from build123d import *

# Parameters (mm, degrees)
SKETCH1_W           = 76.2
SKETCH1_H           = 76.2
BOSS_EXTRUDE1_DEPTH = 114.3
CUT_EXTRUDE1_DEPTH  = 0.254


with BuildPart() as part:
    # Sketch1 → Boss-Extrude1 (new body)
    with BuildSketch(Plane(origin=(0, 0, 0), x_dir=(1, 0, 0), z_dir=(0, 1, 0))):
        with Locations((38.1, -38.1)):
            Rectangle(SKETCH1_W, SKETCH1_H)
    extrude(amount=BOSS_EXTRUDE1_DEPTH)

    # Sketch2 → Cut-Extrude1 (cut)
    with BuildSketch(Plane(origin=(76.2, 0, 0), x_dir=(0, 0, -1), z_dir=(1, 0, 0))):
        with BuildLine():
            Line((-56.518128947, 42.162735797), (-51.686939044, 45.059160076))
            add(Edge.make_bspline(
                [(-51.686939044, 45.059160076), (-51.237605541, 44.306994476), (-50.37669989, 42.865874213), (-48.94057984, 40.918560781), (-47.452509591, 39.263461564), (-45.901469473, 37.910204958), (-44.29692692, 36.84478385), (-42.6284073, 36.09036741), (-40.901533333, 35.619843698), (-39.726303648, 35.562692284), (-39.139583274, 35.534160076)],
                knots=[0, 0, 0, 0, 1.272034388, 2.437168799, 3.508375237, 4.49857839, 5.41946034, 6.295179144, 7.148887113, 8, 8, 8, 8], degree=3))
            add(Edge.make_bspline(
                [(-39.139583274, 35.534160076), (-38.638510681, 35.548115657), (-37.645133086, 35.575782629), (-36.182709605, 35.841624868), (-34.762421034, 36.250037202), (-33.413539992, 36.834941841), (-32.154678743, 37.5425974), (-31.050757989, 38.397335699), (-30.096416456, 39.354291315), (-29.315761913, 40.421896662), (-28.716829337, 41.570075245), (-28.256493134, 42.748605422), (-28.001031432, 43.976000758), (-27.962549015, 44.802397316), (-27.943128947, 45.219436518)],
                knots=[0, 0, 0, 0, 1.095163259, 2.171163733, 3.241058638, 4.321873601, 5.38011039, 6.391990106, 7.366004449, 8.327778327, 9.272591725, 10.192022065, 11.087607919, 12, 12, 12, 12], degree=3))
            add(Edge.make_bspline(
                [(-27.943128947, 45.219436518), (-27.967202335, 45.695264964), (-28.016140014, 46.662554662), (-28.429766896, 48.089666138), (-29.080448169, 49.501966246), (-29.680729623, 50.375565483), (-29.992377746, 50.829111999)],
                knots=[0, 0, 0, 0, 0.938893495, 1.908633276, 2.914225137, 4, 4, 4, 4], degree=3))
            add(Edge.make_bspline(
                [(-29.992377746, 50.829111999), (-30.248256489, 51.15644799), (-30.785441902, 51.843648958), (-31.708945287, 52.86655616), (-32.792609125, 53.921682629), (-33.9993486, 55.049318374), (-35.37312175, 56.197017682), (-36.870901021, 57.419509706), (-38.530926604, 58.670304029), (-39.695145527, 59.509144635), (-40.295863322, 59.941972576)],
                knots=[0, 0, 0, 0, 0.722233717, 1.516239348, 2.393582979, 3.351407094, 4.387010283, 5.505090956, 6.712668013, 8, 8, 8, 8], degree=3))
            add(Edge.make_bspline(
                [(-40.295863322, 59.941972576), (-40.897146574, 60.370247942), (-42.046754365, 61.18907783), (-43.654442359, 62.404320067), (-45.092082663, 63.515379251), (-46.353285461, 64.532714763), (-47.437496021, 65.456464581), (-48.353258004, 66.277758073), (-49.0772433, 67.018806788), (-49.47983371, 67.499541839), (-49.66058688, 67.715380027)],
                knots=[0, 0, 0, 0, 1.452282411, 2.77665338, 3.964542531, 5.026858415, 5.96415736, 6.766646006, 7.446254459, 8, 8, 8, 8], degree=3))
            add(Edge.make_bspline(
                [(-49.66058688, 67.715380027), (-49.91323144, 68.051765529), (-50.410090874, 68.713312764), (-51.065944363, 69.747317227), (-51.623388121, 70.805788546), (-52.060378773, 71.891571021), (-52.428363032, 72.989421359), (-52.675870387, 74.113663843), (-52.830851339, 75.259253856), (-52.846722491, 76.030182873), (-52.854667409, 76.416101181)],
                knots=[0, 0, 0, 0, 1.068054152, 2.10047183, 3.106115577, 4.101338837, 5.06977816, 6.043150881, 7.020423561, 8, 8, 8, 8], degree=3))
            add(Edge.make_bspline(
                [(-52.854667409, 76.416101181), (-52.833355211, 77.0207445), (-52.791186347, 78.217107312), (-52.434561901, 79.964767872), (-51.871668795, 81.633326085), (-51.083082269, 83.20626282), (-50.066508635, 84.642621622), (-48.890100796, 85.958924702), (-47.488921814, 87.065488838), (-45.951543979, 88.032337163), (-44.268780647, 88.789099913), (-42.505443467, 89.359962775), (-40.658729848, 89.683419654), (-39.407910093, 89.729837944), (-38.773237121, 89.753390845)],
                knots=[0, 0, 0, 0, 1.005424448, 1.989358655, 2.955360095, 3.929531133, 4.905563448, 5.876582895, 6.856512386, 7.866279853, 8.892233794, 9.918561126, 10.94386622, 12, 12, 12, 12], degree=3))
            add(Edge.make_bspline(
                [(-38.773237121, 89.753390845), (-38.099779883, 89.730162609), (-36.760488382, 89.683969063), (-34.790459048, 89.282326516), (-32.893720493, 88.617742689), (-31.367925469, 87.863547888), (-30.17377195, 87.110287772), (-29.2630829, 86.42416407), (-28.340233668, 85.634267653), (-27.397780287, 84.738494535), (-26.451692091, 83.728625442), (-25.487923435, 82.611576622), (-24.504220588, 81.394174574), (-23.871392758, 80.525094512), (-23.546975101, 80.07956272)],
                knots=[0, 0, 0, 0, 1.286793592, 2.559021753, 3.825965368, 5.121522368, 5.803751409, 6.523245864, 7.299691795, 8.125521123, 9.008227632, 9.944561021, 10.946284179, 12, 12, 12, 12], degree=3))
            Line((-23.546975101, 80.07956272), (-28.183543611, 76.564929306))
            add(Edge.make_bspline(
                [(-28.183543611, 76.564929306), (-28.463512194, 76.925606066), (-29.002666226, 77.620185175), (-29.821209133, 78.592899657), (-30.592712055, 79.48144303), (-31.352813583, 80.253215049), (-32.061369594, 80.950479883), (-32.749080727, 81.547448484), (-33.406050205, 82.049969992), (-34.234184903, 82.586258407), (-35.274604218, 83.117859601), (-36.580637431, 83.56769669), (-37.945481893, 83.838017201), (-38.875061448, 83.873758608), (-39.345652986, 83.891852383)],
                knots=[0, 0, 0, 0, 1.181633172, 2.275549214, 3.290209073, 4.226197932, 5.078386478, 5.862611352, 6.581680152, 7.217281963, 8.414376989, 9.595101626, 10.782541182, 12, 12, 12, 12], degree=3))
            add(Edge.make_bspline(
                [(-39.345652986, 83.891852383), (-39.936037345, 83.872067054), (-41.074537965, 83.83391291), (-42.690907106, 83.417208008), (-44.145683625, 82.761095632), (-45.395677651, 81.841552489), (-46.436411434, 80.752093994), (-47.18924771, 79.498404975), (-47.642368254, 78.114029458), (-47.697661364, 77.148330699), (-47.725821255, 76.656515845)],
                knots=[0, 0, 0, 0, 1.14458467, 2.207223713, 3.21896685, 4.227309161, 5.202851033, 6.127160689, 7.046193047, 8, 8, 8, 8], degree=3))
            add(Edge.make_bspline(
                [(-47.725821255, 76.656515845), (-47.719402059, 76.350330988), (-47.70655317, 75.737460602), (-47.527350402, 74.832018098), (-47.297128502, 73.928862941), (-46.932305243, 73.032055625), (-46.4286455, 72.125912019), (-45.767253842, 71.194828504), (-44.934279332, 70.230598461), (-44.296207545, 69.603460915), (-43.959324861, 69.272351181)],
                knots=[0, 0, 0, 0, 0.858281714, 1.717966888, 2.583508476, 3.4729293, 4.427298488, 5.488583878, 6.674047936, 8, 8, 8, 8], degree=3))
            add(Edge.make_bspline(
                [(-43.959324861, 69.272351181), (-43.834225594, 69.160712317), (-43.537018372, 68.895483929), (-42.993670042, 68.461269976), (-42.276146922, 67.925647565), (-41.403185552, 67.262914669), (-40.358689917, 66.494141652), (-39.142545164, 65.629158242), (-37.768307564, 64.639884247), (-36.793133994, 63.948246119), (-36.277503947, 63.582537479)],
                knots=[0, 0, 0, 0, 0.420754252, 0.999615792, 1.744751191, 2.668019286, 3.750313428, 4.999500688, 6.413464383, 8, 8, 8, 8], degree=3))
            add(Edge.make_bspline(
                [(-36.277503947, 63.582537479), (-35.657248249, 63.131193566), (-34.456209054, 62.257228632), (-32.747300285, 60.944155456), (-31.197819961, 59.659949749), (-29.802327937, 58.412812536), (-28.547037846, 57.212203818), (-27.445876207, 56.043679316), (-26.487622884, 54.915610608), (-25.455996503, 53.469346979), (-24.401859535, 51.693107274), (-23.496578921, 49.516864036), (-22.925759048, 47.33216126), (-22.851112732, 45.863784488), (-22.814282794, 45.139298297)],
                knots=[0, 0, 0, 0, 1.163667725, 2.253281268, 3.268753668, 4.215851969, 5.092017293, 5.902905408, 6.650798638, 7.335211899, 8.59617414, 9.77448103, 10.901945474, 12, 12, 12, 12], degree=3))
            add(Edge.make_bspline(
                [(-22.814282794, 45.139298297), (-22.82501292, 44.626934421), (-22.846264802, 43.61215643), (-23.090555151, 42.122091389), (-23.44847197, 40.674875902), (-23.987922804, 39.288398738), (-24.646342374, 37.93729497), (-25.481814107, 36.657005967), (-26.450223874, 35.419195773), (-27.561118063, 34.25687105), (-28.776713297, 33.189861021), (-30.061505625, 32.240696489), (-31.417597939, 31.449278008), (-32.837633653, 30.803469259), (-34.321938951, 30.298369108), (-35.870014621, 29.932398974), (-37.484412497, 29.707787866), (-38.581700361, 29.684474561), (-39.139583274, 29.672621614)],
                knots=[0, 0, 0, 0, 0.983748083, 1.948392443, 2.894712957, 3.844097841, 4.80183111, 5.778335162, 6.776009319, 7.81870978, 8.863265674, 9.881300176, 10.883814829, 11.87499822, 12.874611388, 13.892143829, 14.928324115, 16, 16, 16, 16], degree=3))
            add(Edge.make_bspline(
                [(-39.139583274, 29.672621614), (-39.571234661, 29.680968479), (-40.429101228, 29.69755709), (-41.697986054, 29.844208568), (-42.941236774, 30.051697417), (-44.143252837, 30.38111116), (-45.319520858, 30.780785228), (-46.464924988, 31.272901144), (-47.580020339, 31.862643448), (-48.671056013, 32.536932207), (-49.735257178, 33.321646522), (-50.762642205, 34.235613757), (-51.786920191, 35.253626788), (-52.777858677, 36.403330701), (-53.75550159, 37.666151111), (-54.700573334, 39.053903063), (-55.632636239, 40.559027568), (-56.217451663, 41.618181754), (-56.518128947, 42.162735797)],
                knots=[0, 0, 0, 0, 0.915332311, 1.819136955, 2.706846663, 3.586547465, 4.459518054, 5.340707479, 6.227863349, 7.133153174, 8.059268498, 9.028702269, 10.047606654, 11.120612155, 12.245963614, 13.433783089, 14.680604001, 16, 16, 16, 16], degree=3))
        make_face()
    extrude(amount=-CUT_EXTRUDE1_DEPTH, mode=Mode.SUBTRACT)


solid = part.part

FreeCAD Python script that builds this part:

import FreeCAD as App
import Part
import Sketcher

V = App.Vector
Q = App.Units.Quantity

doc = App.newDocument("Part")
params = doc.addObject("Spreadsheet::Sheet", "Params")
for row, (alias, value) in enumerate([
    ("sketch1_width", "3 in"),
    ("pad1_length", "4.5 in"),
    ("pocket1_length", "0.01 in"),
], start=1):
    params.set(f"A{row}", alias)
    params.set(f"B{row}", "=" + value)
    params.setAlias(f"B{row}", alias)

body = doc.addObject("PartDesign::Body", "Body")

sketch1 = doc.addObject("Sketcher::SketchObject", "Sketch")
body.addObject(sketch1)
sketch1.AttachmentSupport = (doc.XZ_Plane, [""])
sketch1.MapMode = "FlatFace"
sketch1.addGeometry([
    Part.LineSegment(V(0, 0, 0), V(0, 76, 0)),
    Part.LineSegment(V(0, 76, 0), V(76, 76, 0)),
    Part.LineSegment(V(76, 76, 0), V(76, 0, 0)),
    Part.LineSegment(V(76, 0, 0), V(0, 0, 0)),
], False)
sketch1.addConstraint([
    Sketcher.Constraint("Coincident", 0, 2, 1, 1),
    Sketcher.Constraint("Coincident", 1, 2, 2, 1),
    Sketcher.Constraint("Coincident", 2, 2, 3, 1),
    Sketcher.Constraint("Coincident", 3, 2, 0, 1),
    Sketcher.Constraint("Vertical", 0),
    Sketcher.Constraint("Horizontal", 1),
    Sketcher.Constraint("Vertical", 2),
    Sketcher.Constraint("Horizontal", 3),
    Sketcher.Constraint("Coincident", 3, 2, -1, 1),
    Sketcher.Constraint("Equal", 3, 0),
    Sketcher.Constraint("DistanceX", 1, 1, 1, 2, Q("3 in")),
])
sketch1.setExpression("Constraints[10]", "Params.sketch1_width")
pad1 = doc.addObject("PartDesign::Pad", "Pad")
body.addObject(pad1)
pad1.Profile = sketch1
pad1.setExpression("Length", "Params.pad1_length")
pad1.Reversed = True

sketch2 = doc.addObject("Sketcher::SketchObject", "Sketch001")
body.addObject(sketch2)
sketch2.AttachmentSupport = (doc.YZ_Plane, [""])
sketch2.MapMode = "FlatFace"
sketch2.AttachmentOffset = App.Placement(V(0, 0, 3 * 25.4), App.Rotation())
sketch2.addGeometry([
    Part.LineSegment(V(45.05916, 51.686939, 0), V(42.162736, 56.518129, 0)),
    Part.BSplineCurve([V(29.672622, 39.139583, 0), V(29.680968, 39.571235, 0), V(29.697557, 40.429101, 0), V(29.844209, 41.697986, 0), V(30.051697, 42.941237, 0), V(30.381111, 44.143253, 0), V(30.780785, 45.319521, 0), V(31.272901, 46.464925, 0), V(31.862643, 47.58002, 0), V(32.536932, 48.671056, 0), V(33.321647, 49.735257, 0), V(34.235614, 50.762642, 0), V(35.253627, 51.78692, 0), V(36.403331, 52.777859, 0), V(37.666151, 53.755502, 0), V(39.053903, 54.700573, 0), V(40.559028, 55.632636, 0), V(41.618182, 56.217452, 0), V(42.162736, 56.518129, 0)], [4, 1, 1, 1, 1, 1, 1, 1, 1, 1, 1, 1, 1, 1, 1, 1, 4], [0, 0.915332311, 1.819136955, 2.706846663, 3.586547465, 4.459518054, 5.340707479, 6.227863349, 7.133153174, 8.059268498, 9.028702269, 10.047606654, 11.120612155, 12.245963614, 13.433783089, 14.680604001, 16], False, 3, [1, 1, 1, 1, 1, 1, 1, 1, 1, 1, 1, 1, 1, 1, 1, 1, 1, 1, 1], False),
    Part.BSplineCurve([V(45.139298, 22.814283, 0), V(44.626934, 22.825013, 0), V(43.612156, 22.846265, 0), V(42.122091, 23.090555, 0), V(40.674876, 23.448472, 0), V(39.288399, 23.987923, 0), V(37.937295, 24.646342, 0), V(36.657006, 25.481814, 0), V(35.419196, 26.450224, 0), V(34.256871, 27.561118, 0), V(33.189861, 28.776713, 0), V(32.240696, 30.061506, 0), V(31.449278, 31.417598, 0), V(30.803469, 32.837634, 0), V(30.298369, 34.321939, 0), V(29.932399, 35.870015, 0), V(29.707788, 37.484412, 0), V(29.684475, 38.5817, 0), V(29.672622, 39.139583, 0)], [4, 1, 1, 1, 1, 1, 1, 1, 1, 1, 1, 1, 1, 1, 1, 1, 4], [0, 0.983748083, 1.948392443, 2.894712957, 3.844097841, 4.80183111, 5.778335162, 6.776009319, 7.81870978, 8.863265674, 9.881300176, 10.883814829, 11.87499822, 12.874611388, 13.892143829, 14.928324115, 16], False, 3, [1, 1, 1, 1, 1, 1, 1, 1, 1, 1, 1, 1, 1, 1, 1, 1, 1, 1, 1], False),
    Part.BSplineCurve([V(63.582537, 36.277504, 0), V(63.131194, 35.657248, 0), V(62.257229, 34.456209, 0), V(60.944155, 32.7473, 0), V(59.65995, 31.19782, 0), V(58.412813, 29.802328, 0), V(57.212204, 28.547038, 0), V(56.043679, 27.445876, 0), V(54.915611, 26.487623, 0), V(53.469347, 25.455997, 0), V(51.693107, 24.40186, 0), V(49.516864, 23.496579, 0), V(47.332161, 22.925759, 0), V(45.863784, 22.851113, 0), V(45.139298, 22.814283, 0)], [4, 1, 1, 1, 1, 1, 1, 1, 1, 1, 1, 1, 4], [0, 1.163667725, 2.253281268, 3.268753668, 4.215851969, 5.092017293, 5.902905408, 6.650798638, 7.335211899, 8.59617414, 9.77448103, 10.901945474, 12], False, 3, [1, 1, 1, 1, 1, 1, 1, 1, 1, 1, 1, 1, 1, 1, 1], False),
    Part.BSplineCurve([V(69.272351, 43.959325, 0), V(69.160712, 43.834226, 0), V(68.895484, 43.537018, 0), V(68.46127, 42.99367, 0), V(67.925648, 42.276147, 0), V(67.262915, 41.403186, 0), V(66.494142, 40.35869, 0), V(65.629158, 39.142545, 0), V(64.639884, 37.768308, 0), V(63.948246, 36.793134, 0), V(63.582537, 36.277504, 0)], [4, 1, 1, 1, 1, 1, 1, 1, 4], [0, 0.420754252, 0.999615792, 1.744751191, 2.668019286, 3.750313428, 4.999500688, 6.413464383, 8], False, 3, [1, 1, 1, 1, 1, 1, 1, 1, 1, 1, 1], False),
    Part.BSplineCurve([V(76.656516, 47.725821, 0), V(76.350331, 47.719402, 0), V(75.737461, 47.706553, 0), V(74.832018, 47.52735, 0), V(73.928863, 47.297129, 0), V(73.032056, 46.932305, 0), V(72.125912, 46.428646, 0), V(71.194829, 45.767254, 0), V(70.230598, 44.934279, 0), V(69.603461, 44.296208, 0), V(69.272351, 43.959325, 0)], [4, 1, 1, 1, 1, 1, 1, 1, 4], [0, 0.858281714, 1.717966888, 2.583508476, 3.4729293, 4.427298488, 5.488583878, 6.674047936, 8], False, 3, [1, 1, 1, 1, 1, 1, 1, 1, 1, 1, 1], False),
    Part.BSplineCurve([V(83.891852, 39.345653, 0), V(83.872067, 39.936037, 0), V(83.833913, 41.074538, 0), V(83.417208, 42.690907, 0), V(82.761096, 44.145684, 0), V(81.841552, 45.395678, 0), V(80.752094, 46.436411, 0), V(79.498405, 47.189248, 0), V(78.114029, 47.642368, 0), V(77.148331, 47.697661, 0), V(76.656516, 47.725821, 0)], [4, 1, 1, 1, 1, 1, 1, 1, 4], [0, 1.14458467, 2.207223713, 3.21896685, 4.227309161, 5.202851033, 6.127160689, 7.046193047, 8], False, 3, [1, 1, 1, 1, 1, 1, 1, 1, 1, 1, 1], False),
    Part.BSplineCurve([V(76.564929, 28.183544, 0), V(76.925606, 28.463512, 0), V(77.620185, 29.002666, 0), V(78.5929, 29.821209, 0), V(79.481443, 30.592712, 0), V(80.253215, 31.352814, 0), V(80.95048, 32.06137, 0), V(81.547448, 32.749081, 0), V(82.04997, 33.40605, 0), V(82.586258, 34.234185, 0), V(83.11786, 35.274604, 0), V(83.567697, 36.580637, 0), V(83.838017, 37.945482, 0), V(83.873759, 38.875061, 0), V(83.891852, 39.345653, 0)], [4, 1, 1, 1, 1, 1, 1, 1, 1, 1, 1, 1, 4], [0, 1.181633172, 2.275549214, 3.290209073, 4.226197932, 5.078386478, 5.862611352, 6.581680152, 7.217281963, 8.414376989, 9.595101626, 10.782541182, 12], False, 3, [1, 1, 1, 1, 1, 1, 1, 1, 1, 1, 1, 1, 1, 1, 1], False),
    Part.LineSegment(V(76.564929, 28.183544, 0), V(80.079563, 23.546975, 0)),
    Part.BSplineCurve([V(89.753391, 38.773237, 0), V(89.730163, 38.09978, 0), V(89.683969, 36.760488, 0), V(89.282327, 34.790459, 0), V(88.617743, 32.89372, 0), V(87.863548, 31.367925, 0), V(87.110288, 30.173772, 0), V(86.424164, 29.263083, 0), V(85.634268, 28.340234, 0), V(84.738495, 27.39778, 0), V(83.728625, 26.451692, 0), V(82.611577, 25.487923, 0), V(81.394175, 24.504221, 0), V(80.525095, 23.871393, 0), V(80.079563, 23.546975, 0)], [4, 1, 1, 1, 1, 1, 1, 1, 1, 1, 1, 1, 4], [0, 1.286793592, 2.559021753, 3.825965368, 5.121522368, 5.803751409, 6.523245864, 7.299691795, 8.125521123, 9.008227632, 9.944561021, 10.946284179, 12], False, 3, [1, 1, 1, 1, 1, 1, 1, 1, 1, 1, 1, 1, 1, 1, 1], False),
    Part.BSplineCurve([V(76.416101, 52.854667, 0), V(77.020745, 52.833355, 0), V(78.217107, 52.791186, 0), V(79.964768, 52.434562, 0), V(81.633326, 51.871669, 0), V(83.206263, 51.083082, 0), V(84.642622, 50.066509, 0), V(85.958925, 48.890101, 0), V(87.065489, 47.488922, 0), V(88.032337, 45.951544, 0), V(88.7891, 44.268781, 0), V(89.359963, 42.505443, 0), V(89.68342, 40.65873, 0), V(89.729838, 39.40791, 0), V(89.753391, 38.773237, 0)], [4, 1, 1, 1, 1, 1, 1, 1, 1, 1, 1, 1, 4], [0, 1.005424448, 1.989358655, 2.955360095, 3.929531133, 4.905563448, 5.876582895, 6.856512386, 7.866279853, 8.892233794, 9.918561126, 10.94386622, 12], False, 3, [1, 1, 1, 1, 1, 1, 1, 1, 1, 1, 1, 1, 1, 1, 1], False),
    Part.BSplineCurve([V(67.71538, 49.660587, 0), V(68.051766, 49.913231, 0), V(68.713313, 50.410091, 0), V(69.747317, 51.065944, 0), V(70.805789, 51.623388, 0), V(71.891571, 52.060379, 0), V(72.989421, 52.428363, 0), V(74.113664, 52.67587, 0), V(75.259254, 52.830851, 0), V(76.030183, 52.846722, 0), V(76.416101, 52.854667, 0)], [4, 1, 1, 1, 1, 1, 1, 1, 4], [0, 1.068054152, 2.10047183, 3.106115577, 4.101338837, 5.06977816, 6.043150881, 7.020423561, 8], False, 3, [1, 1, 1, 1, 1, 1, 1, 1, 1, 1, 1], False),
    Part.BSplineCurve([V(59.941973, 40.295863, 0), V(60.370248, 40.897147, 0), V(61.189078, 42.046754, 0), V(62.40432, 43.654442, 0), V(63.515379, 45.092083, 0), V(64.532715, 46.353285, 0), V(65.456465, 47.437496, 0), V(66.277758, 48.353258, 0), V(67.018807, 49.077243, 0), V(67.499542, 49.479834, 0), V(67.71538, 49.660587, 0)], [4, 1, 1, 1, 1, 1, 1, 1, 4], [0, 1.452282411, 2.77665338, 3.964542531, 5.026858415, 5.96415736, 6.766646006, 7.446254459, 8], False, 3, [1, 1, 1, 1, 1, 1, 1, 1, 1, 1, 1], False),
    Part.BSplineCurve([V(50.829112, 29.992378, 0), V(51.156448, 30.248256, 0), V(51.843649, 30.785442, 0), V(52.866556, 31.708945, 0), V(53.921683, 32.792609, 0), V(55.049318, 33.999349, 0), V(56.197018, 35.373122, 0), V(57.41951, 36.870901, 0), V(58.670304, 38.530927, 0), V(59.509145, 39.695146, 0), V(59.941973, 40.295863, 0)], [4, 1, 1, 1, 1, 1, 1, 1, 4], [0, 0.722233717, 1.516239348, 2.393582979, 3.351407094, 4.387010283, 5.505090956, 6.712668013, 8], False, 3, [1, 1, 1, 1, 1, 1, 1, 1, 1, 1, 1], False),
    Part.BSplineCurve([V(45.219437, 27.943129, 0), V(45.695265, 27.967202, 0), V(46.662555, 28.01614, 0), V(48.089666, 28.429767, 0), V(49.501966, 29.080448, 0), V(50.375565, 29.68073, 0), V(50.829112, 29.992378, 0)], [4, 1, 1, 1, 4], [0, 0.938893495, 1.908633276, 2.914225137, 4], False, 3, [1, 1, 1, 1, 1, 1, 1], False),
    Part.BSplineCurve([V(35.53416, 39.139583, 0), V(35.548116, 38.638511, 0), V(35.575783, 37.645133, 0), V(35.841625, 36.18271, 0), V(36.250037, 34.762421, 0), V(36.834942, 33.41354, 0), V(37.542597, 32.154679, 0), V(38.397336, 31.050758, 0), V(39.354291, 30.096416, 0), V(40.421897, 29.315762, 0), V(41.570075, 28.716829, 0), V(42.748605, 28.256493, 0), V(43.976001, 28.001031, 0), V(44.802397, 27.962549, 0), V(45.219437, 27.943129, 0)], [4, 1, 1, 1, 1, 1, 1, 1, 1, 1, 1, 1, 4], [0, 1.095163259, 2.171163733, 3.241058638, 4.321873601, 5.38011039, 6.391990106, 7.366004449, 8.327778327, 9.272591725, 10.192022065, 11.087607919, 12], False, 3, [1, 1, 1, 1, 1, 1, 1, 1, 1, 1, 1, 1, 1, 1, 1], False),
    Part.BSplineCurve([V(45.05916, 51.686939, 0), V(44.306994, 51.237606, 0), V(42.865874, 50.3767, 0), V(40.918561, 48.94058, 0), V(39.263462, 47.45251, 0), V(37.910205, 45.901469, 0), V(36.844784, 44.296927, 0), V(36.090367, 42.628407, 0), V(35.619844, 40.901533, 0), V(35.562692, 39.726304, 0), V(35.53416, 39.139583, 0)], [4, 1, 1, 1, 1, 1, 1, 1, 4], [0, 1.272034388, 2.437168799, 3.508375237, 4.49857839, 5.41946034, 6.295179144, 7.148887113, 8], False, 3, [1, 1, 1, 1, 1, 1, 1, 1, 1, 1, 1], False),
], False)
sketch2.addConstraint([
    Sketcher.Constraint("Block", 1),
    Sketcher.Constraint("Block", 2),
    Sketcher.Constraint("Block", 3),
    Sketcher.Constraint("Block", 4),
    Sketcher.Constraint("Block", 5),
    Sketcher.Constraint("Block", 6),
    Sketcher.Constraint("Block", 7),
    Sketcher.Constraint("Block", 9),
    Sketcher.Constraint("Block", 10),
    Sketcher.Constraint("Block", 11),
    Sketcher.Constraint("Block", 12),
    Sketcher.Constraint("Block", 13),
    Sketcher.Constraint("Block", 14),
    Sketcher.Constraint("Block", 15),
    Sketcher.Constraint("Block", 16),
    Sketcher.Constraint("Coincident", 0, 2, 1, 2),
    Sketcher.Constraint("Coincident", 7, 1, 8, 1),
    Sketcher.Constraint("Coincident", 8, 2, 9, 2),
    Sketcher.Constraint("Coincident", 16, 1, 0, 1),
])
pocket1 = doc.addObject("PartDesign::Pocket", "Pocket")
body.addObject(pocket1)
pocket1.Profile = sketch2
pocket1.setExpression("Length", "Params.pocket1_length")

doc.recompute()
